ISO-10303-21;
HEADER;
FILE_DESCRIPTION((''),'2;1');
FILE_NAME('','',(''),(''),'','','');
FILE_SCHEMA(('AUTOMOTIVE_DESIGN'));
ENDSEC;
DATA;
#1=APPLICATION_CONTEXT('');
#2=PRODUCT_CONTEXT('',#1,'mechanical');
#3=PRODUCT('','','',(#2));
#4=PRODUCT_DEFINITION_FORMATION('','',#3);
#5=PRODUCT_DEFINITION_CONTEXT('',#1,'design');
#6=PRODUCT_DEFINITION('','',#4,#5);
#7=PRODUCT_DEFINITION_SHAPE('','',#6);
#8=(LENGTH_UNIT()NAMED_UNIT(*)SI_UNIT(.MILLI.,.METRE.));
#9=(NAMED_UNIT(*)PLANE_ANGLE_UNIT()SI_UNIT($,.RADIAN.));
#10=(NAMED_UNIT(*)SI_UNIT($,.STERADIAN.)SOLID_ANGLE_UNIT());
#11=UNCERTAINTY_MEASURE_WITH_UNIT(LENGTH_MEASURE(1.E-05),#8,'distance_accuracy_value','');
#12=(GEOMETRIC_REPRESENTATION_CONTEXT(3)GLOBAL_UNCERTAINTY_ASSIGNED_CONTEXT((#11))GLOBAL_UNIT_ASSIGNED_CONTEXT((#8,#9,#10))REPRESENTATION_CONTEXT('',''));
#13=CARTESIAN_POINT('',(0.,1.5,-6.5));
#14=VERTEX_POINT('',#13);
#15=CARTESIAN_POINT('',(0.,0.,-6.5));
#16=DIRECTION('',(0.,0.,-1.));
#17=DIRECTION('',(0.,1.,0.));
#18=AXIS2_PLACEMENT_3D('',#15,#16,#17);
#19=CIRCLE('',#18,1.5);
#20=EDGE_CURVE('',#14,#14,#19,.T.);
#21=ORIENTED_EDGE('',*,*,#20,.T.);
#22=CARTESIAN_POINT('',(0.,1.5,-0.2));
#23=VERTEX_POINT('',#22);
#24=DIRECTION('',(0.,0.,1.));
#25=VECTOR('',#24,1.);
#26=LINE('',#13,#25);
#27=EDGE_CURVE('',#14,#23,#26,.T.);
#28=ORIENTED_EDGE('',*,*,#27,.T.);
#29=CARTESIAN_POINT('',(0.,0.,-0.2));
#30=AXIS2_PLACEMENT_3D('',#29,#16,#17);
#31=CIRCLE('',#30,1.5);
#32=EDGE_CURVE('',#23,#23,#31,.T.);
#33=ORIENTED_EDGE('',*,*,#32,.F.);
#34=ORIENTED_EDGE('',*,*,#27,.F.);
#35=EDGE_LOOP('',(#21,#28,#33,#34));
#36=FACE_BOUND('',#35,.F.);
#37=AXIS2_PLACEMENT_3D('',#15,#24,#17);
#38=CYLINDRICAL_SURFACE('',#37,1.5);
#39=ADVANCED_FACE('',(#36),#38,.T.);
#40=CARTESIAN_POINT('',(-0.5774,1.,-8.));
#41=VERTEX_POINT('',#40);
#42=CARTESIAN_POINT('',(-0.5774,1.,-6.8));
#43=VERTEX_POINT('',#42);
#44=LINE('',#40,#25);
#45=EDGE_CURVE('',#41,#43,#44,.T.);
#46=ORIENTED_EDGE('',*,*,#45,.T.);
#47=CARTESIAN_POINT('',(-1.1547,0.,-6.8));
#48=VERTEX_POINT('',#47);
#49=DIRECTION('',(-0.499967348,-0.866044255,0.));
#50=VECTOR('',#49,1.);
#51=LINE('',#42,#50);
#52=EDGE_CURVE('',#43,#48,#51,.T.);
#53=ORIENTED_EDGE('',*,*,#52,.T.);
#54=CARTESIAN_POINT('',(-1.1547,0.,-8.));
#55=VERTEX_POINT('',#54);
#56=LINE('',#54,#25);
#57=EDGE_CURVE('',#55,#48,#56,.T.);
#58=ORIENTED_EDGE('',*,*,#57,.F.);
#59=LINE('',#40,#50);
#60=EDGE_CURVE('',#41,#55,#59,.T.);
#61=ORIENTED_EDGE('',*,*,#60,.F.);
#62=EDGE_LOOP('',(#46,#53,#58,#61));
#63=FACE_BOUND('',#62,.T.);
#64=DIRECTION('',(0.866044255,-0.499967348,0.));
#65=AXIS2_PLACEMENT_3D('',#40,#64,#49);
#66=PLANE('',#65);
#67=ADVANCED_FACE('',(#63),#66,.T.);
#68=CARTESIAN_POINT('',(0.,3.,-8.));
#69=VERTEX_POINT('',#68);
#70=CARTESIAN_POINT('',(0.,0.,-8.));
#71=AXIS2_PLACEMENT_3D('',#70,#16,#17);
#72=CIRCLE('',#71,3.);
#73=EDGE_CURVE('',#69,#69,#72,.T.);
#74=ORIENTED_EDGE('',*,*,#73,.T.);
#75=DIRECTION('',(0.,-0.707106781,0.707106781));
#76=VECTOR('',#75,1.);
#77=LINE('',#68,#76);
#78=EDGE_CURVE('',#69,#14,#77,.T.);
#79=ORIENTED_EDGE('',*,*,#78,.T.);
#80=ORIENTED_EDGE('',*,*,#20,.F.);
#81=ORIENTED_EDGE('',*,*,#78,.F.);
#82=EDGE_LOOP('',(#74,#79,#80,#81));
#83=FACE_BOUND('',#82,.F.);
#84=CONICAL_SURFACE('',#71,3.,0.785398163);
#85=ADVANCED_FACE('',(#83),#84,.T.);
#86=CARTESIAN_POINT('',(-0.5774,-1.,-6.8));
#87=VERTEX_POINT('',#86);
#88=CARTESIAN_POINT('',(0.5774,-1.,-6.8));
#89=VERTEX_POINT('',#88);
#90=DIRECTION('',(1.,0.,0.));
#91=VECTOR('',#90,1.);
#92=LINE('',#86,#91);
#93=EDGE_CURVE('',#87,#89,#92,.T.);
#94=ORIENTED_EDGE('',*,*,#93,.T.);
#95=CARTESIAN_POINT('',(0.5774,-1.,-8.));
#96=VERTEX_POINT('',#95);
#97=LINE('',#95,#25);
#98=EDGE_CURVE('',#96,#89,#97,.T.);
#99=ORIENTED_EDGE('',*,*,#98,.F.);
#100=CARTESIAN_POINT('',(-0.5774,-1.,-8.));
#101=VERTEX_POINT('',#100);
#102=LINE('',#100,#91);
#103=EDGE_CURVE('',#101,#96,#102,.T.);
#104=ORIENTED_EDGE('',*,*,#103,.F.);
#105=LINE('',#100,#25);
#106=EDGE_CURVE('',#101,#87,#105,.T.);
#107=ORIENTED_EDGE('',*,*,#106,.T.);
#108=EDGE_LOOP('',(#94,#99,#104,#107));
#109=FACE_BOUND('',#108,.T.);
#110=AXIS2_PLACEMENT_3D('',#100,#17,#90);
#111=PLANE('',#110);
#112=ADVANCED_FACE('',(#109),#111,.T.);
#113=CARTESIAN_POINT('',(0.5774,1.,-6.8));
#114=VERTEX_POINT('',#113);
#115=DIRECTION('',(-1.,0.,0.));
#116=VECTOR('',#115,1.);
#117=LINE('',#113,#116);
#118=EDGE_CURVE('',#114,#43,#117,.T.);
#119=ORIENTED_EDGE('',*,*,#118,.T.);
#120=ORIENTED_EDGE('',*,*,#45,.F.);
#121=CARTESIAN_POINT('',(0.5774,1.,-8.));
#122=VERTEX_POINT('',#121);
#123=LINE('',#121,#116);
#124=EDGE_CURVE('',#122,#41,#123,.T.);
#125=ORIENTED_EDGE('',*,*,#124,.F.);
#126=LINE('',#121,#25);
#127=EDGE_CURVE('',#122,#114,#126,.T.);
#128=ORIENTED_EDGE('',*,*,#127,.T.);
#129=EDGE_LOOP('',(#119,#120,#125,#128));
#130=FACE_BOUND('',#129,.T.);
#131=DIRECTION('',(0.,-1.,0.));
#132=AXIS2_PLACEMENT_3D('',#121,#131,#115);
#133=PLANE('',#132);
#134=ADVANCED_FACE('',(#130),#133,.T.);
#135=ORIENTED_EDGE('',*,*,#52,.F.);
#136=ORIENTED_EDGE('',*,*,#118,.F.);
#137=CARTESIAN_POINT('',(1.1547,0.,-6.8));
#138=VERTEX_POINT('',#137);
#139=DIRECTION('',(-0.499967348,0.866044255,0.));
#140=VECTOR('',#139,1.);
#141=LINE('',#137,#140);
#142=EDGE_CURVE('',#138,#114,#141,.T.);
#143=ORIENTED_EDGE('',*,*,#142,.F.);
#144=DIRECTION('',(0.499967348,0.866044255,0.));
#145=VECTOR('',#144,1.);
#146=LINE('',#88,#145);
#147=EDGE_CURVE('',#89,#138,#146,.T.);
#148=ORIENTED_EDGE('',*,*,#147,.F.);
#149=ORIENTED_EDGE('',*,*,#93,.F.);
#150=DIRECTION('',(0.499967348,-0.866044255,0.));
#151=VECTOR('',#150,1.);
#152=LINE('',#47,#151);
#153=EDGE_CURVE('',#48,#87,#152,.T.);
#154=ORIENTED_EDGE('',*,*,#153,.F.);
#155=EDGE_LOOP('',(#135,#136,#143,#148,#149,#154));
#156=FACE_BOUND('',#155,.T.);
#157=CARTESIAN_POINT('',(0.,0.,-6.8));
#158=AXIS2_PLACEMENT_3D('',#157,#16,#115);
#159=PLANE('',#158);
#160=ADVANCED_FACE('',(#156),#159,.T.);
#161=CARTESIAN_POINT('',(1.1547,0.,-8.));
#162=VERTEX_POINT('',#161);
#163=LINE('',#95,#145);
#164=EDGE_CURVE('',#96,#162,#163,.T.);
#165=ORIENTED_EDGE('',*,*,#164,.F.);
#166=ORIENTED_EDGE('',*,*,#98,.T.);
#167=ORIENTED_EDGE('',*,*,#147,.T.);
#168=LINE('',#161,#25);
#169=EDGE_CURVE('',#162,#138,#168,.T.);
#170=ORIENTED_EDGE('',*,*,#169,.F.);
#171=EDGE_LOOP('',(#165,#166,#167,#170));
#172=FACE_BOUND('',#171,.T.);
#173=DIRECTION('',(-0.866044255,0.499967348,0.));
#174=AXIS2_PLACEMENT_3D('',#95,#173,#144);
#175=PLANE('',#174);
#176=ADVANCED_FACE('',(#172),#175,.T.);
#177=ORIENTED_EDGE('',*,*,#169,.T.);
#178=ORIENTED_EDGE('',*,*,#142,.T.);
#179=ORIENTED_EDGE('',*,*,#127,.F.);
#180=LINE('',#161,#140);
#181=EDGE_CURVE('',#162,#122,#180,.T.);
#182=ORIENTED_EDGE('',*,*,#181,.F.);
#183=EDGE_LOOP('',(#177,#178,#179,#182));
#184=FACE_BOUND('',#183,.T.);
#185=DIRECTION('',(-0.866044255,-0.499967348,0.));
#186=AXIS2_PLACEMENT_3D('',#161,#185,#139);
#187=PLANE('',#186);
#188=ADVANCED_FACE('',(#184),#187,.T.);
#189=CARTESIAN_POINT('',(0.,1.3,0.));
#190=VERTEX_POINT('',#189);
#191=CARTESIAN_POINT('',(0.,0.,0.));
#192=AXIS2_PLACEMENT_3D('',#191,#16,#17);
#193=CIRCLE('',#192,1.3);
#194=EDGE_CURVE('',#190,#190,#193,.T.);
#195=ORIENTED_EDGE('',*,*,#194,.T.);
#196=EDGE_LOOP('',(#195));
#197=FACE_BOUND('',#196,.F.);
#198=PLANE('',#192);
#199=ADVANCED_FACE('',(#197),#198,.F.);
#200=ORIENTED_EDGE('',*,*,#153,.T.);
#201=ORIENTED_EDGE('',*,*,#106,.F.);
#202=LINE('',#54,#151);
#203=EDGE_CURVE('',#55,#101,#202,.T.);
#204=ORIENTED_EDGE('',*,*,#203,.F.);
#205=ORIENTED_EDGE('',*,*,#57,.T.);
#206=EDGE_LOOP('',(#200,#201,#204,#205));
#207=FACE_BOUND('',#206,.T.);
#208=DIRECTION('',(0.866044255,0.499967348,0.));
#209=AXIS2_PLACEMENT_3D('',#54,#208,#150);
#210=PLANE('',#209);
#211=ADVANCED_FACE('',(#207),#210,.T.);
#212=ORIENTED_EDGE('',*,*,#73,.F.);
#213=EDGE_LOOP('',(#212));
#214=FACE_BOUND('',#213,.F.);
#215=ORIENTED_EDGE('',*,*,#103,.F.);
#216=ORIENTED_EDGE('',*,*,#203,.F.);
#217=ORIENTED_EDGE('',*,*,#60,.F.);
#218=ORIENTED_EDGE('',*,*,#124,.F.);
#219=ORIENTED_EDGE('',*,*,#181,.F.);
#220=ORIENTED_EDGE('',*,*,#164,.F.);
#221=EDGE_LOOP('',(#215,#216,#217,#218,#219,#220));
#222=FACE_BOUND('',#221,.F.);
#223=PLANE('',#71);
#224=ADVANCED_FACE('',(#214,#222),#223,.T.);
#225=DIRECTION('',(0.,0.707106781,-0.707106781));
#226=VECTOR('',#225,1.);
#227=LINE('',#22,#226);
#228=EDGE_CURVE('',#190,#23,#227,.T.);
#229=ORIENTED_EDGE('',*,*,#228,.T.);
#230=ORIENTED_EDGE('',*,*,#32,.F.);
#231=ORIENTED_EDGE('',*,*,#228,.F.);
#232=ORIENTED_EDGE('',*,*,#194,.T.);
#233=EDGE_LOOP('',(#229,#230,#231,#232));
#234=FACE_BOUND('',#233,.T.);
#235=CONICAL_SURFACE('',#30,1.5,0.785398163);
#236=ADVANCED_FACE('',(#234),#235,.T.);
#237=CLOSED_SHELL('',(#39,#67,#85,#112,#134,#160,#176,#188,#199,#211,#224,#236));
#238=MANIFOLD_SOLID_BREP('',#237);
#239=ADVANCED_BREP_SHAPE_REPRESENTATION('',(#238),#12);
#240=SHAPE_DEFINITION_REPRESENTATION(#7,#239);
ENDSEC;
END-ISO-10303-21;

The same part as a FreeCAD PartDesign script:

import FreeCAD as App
import Part
import Sketcher
from FreeCAD import Vector
Q = App.Units.Quantity


def edges_at(feature, points):
    """Names of the edges that pass closest to the given points."""
    edges = feature.Shape.Edges
    near = lambda p: min(range(len(edges)), key=lambda i: edges[i].distToShape(Part.Vertex(*p))[0])
    return sorted({f"Edge{near(p) + 1}" for p in points})


def add_polygon(sketch, points):
    """Adds a closed chain of lines whose ends are joined by coincident constraints."""
    first, n = sketch.GeometryCount, len(points)
    for a, b in zip(points, points[1:] + points[:1]):
        sketch.addGeometry(Part.LineSegment(App.Vector(*a, 0), App.Vector(*b, 0)), False)
    for i in range(n):
        sketch.addConstraint(Sketcher.Constraint("Coincident", first + i, 2, first + (i + 1) % n, 1))

doc = App.newDocument("Part")
body = doc.addObject("PartDesign::Body", "Body")

sketch1 = body.newObject("Sketcher::SketchObject", "Sketch")
sketch1.AttachmentSupport = (doc.getObject("YZ_Plane"), [""])
sketch1.MapMode = "FlatFace"
add_polygon(sketch1, [(1.5, 0), (0, 0), (0, -8), (3, -8), (1.5, -6.5)])
sketch1.addConstraint([
    Sketcher.Constraint("Horizontal", 0),
    Sketcher.Constraint("Vertical", 1),
    Sketcher.Constraint("Horizontal", 2),
    Sketcher.Constraint("Vertical", 4),
    Sketcher.Constraint("Coincident", 0, 2, -1, 1),
    Sketcher.Constraint("DistanceX", 2, 1, 2, 2, Q("3 mm")),
    Sketcher.Constraint("DistanceY", 1, 2, 1, 1, Q("8 mm")),
    Sketcher.Constraint("Angle", 3, Q("135 deg")),
    Sketcher.Constraint("DistanceX", 0, 2, 0, 1, Q("1.5 mm")),
])
revolution = body.newObject("PartDesign::Revolution", "Revolution")
revolution.Profile = sketch1
revolution.ReferenceAxis = (sketch1, ["V_Axis"])
revolution.Angle = 360

sketch2 = body.newObject("Sketcher::SketchObject", "Sketch001")
sketch2.AttachmentSupport = (doc.getObject("XY_Plane"), [""])
sketch2.MapMode = "FlatFace"
sketch2.AttachmentOffset = App.Placement(Vector(0, 0, -8), App.Rotation())
add_polygon(sketch2, [(-0.5774, -1), (-1.1547, 0), (-0.5774, 1), (0.5774, 1), (1.1547, 0), (0.5774, -1)])
sketch2.addConstraint([
    Sketcher.Constraint("Horizontal", 2),
    Sketcher.Constraint("Horizontal", 5),
    Sketcher.Constraint("Symmetric", 0, 2, 3, 2, -1, 1),
    Sketcher.Constraint("Symmetric", 1, 2, 4, 2, -1, 1),
    Sketcher.Constraint("PointOnObject", 0, 2, -1),
    Sketcher.Constraint("Parallel", 0, 3),
    Sketcher.Constraint("Vertical", 2, 2, 4, 2),
    Sketcher.Constraint("DistanceY", 4, 2, 2, 2, Q("2 mm")),
    Sketcher.Constraint("DistanceX", 2, 1, 2, 2, Q("1.1548 mm")),
    Sketcher.Constraint("DistanceX", 0, 2, 2, 2, Q("1.732 mm")),
])
pocket1 = body.newObject("PartDesign::Pocket", "Pocket")
pocket1.Profile = sketch2
pocket1.Length = 1.2
pocket1.Reversed = True
doc.recompute()

chamfer = body.newObject("PartDesign::Chamfer", "Chamfer")
chamfer.Base = (pocket1, edges_at(pocket1, [(0, -1.5, 0)]))
chamfer.Size = 0.2

doc.recompute()
